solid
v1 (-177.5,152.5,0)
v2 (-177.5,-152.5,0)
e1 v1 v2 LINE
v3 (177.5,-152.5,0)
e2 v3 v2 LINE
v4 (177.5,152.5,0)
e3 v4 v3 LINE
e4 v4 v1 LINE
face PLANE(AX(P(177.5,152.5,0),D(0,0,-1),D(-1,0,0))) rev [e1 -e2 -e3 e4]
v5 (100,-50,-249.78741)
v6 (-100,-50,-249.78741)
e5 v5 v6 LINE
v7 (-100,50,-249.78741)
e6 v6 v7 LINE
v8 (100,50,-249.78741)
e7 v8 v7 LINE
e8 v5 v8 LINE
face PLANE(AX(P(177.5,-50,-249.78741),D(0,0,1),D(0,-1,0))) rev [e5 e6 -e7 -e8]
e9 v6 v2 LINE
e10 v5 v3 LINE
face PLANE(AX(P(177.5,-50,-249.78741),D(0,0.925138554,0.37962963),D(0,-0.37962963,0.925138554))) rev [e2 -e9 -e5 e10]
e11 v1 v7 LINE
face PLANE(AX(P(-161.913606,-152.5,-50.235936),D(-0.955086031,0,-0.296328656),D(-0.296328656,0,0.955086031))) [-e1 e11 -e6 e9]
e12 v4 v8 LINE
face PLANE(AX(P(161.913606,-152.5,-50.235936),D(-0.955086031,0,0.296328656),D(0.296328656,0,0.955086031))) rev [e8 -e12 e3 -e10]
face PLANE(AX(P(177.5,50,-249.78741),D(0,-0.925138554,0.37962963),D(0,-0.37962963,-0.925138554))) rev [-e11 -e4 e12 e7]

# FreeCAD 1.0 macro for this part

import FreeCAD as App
import Part
import Sketcher
Q = App.Units.Quantity


def add_polygon(sketch, points):
    """Adds a closed chain of lines whose ends are joined by coincident constraints."""
    first, n = sketch.GeometryCount, len(points)
    for a, b in zip(points, points[1:] + points[:1]):
        sketch.addGeometry(Part.LineSegment(App.Vector(*a, 0), App.Vector(*b, 0)), False)
    for i in range(n):
        sketch.addConstraint(Sketcher.Constraint("Coincident", first + i, 2, first + (i + 1) % n, 1))

doc = App.newDocument("Part")
params = doc.addObject("Spreadsheet::Sheet", "Params")
for row, (alias, value) in enumerate([
    ("sketch1_width", "305 mm"),
    ("sketch1_width2", "100 mm"),
    ("sketch1_length", "270 mm"),
    ("pad1_length", "355 mm"),
    ("sketch2_width", "77.5 mm"),
    ("pocket1_length", "305 mm"),
], start=1):
    params.set(f"A{row}", alias)
    params.set(f"B{row}", "=" + value)
    params.setAlias(f"B{row}", alias)

body = doc.addObject("PartDesign::Body", "Body")

# Sketch on YZ plane
sketch1 = body.newObject("Sketcher::SketchObject", "Sketch")
sketch1.AttachmentSupport = (doc.getObject("YZ_Plane"), [""])
sketch1.MapMode = "FlatFace"
add_polygon(sketch1, [(152, 0), (-152, 0), (-50, -250), (50, -250)])  # lines 0-3
sketch1.addConstraint(Sketcher.Constraint("Horizontal", 0))
sketch1.addConstraint(Sketcher.Constraint("Horizontal", 2))
sketch1.addConstraint(Sketcher.Constraint("Symmetric", 0, 2, 3, 2, -1, 1))
sketch1.addConstraint(Sketcher.Constraint("Equal", 1, 3))
sketch1.addConstraint(Sketcher.Constraint("DistanceX", 0, 2, 0, 1, Q("305 mm")))
sketch1.addConstraint(Sketcher.Constraint("DistanceX", 2, 1, 2, 2, Q("100 mm")))
sketch1.addConstraint(Sketcher.Constraint("Distance", 1, Q("270 mm")))
sketch1.setExpression("Constraints[8]", "Params.sketch1_width")
sketch1.setExpression("Constraints[9]", "Params.sketch1_width2")
sketch1.setExpression("Constraints[10]", "Params.sketch1_length")
pad1 = body.newObject("PartDesign::Pad", "Pad")
pad1.Profile = sketch1
pad1.setExpression("Length", "Params.pad1_length")
pad1.Midplane = True

# Sketch on XZ plane
sketch2 = body.newObject("Sketcher::SketchObject", "Sketch001")
sketch2.AttachmentSupport = (doc.getObject("XZ_Plane"), [""])
sketch2.MapMode = "FlatFace"
add_polygon(sketch2, [(-100, -250), (-178, -250), (-178, 0)])  # lines 0-2
add_polygon(sketch2, [(178, 0), (178, -250), (100, -250)])  # lines 3-5
sketch2.addConstraint(Sketcher.Constraint("Horizontal", 0))
sketch2.addConstraint(Sketcher.Constraint("Vertical", 1))
sketch2.addConstraint(Sketcher.Constraint("Vertical", 3))
sketch2.addConstraint(Sketcher.Constraint("Horizontal", 4))
sketch2.addConstraint(Sketcher.Constraint("Symmetric", 1, 2, 5, 2, -1, 1))
sketch2.addConstraint(Sketcher.Constraint("Symmetric", 2, 2, 4, 2, -2))
sketch2.addConstraint(Sketcher.Constraint("PointOnObject", 1, 2, -1))
sketch2.addConstraint(Sketcher.Constraint("DistanceX", 0, 2, 0, 1, Q("77.5 mm")))
sketch2.addConstraint(Sketcher.Constraint("DistanceX", 2, 2, -1, 1, Q("100 mm")))
sketch2.addConstraint(Sketcher.Constraint("DistanceY", 1, 1, 1, 2, Q("249.78741 mm")))
sketch2.setExpression("Constraints[13]", "Params.sketch2_width")
pocket1 = body.newObject("PartDesign::Pocket", "Pocket")
pocket1.Profile = sketch2
pocket1.setExpression("Length", "Params.pocket1_length")
pocket1.Midplane = True

doc.recompute()
